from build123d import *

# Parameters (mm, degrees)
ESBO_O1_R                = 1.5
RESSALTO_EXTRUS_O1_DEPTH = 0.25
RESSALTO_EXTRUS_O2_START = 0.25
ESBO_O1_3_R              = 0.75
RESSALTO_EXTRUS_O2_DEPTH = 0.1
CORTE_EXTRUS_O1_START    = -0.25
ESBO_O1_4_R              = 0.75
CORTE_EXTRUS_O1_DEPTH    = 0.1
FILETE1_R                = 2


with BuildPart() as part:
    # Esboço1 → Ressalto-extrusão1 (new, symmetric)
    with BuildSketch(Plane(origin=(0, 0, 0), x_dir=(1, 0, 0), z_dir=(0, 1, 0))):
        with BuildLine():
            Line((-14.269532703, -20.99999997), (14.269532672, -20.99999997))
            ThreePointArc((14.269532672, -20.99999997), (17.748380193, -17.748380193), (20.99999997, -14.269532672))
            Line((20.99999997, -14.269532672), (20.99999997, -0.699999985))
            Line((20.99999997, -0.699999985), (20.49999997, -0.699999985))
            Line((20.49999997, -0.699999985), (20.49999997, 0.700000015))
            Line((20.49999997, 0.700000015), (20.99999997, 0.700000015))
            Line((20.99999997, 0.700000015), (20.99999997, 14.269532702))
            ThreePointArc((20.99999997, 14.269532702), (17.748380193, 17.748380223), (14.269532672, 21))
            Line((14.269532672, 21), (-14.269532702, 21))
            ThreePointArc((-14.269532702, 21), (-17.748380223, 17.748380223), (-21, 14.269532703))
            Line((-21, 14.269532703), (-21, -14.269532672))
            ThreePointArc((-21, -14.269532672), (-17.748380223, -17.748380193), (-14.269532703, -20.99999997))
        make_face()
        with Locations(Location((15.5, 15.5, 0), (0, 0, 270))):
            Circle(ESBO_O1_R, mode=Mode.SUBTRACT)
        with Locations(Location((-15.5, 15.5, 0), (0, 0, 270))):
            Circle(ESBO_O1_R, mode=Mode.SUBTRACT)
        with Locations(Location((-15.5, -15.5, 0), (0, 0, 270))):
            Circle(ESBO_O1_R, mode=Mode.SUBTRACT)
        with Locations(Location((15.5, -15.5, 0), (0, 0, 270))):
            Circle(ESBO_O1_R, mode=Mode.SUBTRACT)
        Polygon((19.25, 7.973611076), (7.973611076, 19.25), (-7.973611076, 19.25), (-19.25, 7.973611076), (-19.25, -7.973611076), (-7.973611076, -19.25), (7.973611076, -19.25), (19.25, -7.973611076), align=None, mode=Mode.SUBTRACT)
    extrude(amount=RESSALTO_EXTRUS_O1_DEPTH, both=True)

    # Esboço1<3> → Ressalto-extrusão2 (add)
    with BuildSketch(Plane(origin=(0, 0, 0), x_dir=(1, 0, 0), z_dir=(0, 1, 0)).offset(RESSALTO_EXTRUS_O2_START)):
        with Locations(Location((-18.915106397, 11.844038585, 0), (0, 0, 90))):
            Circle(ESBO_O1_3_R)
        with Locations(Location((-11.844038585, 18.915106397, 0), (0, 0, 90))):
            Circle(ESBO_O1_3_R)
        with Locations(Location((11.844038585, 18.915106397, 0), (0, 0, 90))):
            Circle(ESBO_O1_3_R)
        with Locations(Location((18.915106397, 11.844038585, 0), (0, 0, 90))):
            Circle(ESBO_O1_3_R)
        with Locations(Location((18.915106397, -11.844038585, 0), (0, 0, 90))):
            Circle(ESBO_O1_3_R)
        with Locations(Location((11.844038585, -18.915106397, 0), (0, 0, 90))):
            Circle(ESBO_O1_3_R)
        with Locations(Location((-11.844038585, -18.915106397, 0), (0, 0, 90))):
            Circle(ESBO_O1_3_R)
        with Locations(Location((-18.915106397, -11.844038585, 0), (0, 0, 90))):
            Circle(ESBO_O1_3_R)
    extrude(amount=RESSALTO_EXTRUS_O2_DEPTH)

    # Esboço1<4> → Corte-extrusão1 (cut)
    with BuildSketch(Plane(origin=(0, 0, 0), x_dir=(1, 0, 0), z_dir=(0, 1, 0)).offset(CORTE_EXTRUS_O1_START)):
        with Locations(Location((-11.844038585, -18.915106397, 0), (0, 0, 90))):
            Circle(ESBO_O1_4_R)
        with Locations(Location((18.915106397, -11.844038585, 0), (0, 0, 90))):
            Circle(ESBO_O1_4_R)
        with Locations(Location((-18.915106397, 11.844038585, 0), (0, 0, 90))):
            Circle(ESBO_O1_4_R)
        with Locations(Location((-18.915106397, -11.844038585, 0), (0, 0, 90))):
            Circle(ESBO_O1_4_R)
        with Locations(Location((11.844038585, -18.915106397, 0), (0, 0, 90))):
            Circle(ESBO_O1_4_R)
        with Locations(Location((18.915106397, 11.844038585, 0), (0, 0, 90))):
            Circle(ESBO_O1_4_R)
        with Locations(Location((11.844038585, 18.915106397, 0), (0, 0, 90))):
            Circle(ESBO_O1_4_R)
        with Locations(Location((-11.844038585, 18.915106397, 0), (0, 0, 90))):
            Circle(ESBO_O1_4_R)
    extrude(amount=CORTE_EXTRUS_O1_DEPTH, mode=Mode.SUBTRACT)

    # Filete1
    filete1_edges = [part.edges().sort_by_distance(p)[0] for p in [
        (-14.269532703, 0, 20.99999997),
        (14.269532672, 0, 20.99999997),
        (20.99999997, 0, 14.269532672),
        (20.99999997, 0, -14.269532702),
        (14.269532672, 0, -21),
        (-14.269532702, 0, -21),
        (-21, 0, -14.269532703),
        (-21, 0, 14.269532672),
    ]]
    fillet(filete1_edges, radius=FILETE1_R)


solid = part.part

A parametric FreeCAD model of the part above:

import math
import FreeCAD as App
import Part
import Sketcher

V = App.Vector


def edges_at(feature, points):
    """Names of the edges that pass closest to the given points."""
    edges = feature.Shape.Edges
    near = lambda p: min(range(len(edges)), key=lambda i: edges[i].distToShape(Part.Vertex(*p))[0])
    return sorted({f"Edge{near(p) + 1}" for p in points})

doc = App.newDocument("Part")
body = doc.addObject("PartDesign::Body", "Body")

sketch1 = doc.addObject("Sketcher::SketchObject", "Sketch")
body.addObject(sketch1)
sketch1.AttachmentSupport = (doc.XZ_Plane, [""])
sketch1.MapMode = "FlatFace"
sketch1.addGeometry(Part.LineSegment(V(-14.269533, 21, 0), V(14.269533, 21, 0)), False)
sketch1.addGeometry(Part.ArcOfCircle(Part.Circle(V(-32.1474, -32.1474, 0), V(0, 0, 1), 70.563289), math.radians(41.132736), math.radians(48.867264)), False)
sketch1.addGeometry(Part.LineSegment(V(21, 14.269533, 0), V(21, 0.7, 0)), False)
sketch1.addGeometry(Part.LineSegment(V(21, 0.7, 0), V(20.5, 0.7, 0)), False)
sketch1.addGeometry(Part.LineSegment(V(20.5, 0.7, 0), V(20.5, -0.7, 0)), False)
sketch1.addGeometry(Part.LineSegment(V(20.5, -0.7, 0), V(21, -0.7, 0)), False)
sketch1.addGeometry(Part.LineSegment(V(21, -0.7, 0), V(21, -14.269533, 0)), False)
sketch1.addGeometry(Part.ArcOfCircle(Part.Circle(V(-32.1474, 32.1474, 0), V(0, 0, 1), 70.563289), math.radians(-48.867264), math.radians(-41.132736)), False)
sketch1.addGeometry(Part.LineSegment(V(14.269533, -21, 0), V(-14.269533, -21, 0)), False)
sketch1.addGeometry(Part.ArcOfCircle(Part.Circle(V(32.1474, 32.1474, 0), V(0, 0, 1), 70.56329), math.radians(-138.867264), math.radians(-131.132736)), False)
sketch1.addGeometry(Part.LineSegment(V(-21, -14.269533, 0), V(-21, 14.269533, 0)), False)
sketch1.addGeometry(Part.ArcOfCircle(Part.Circle(V(32.1474, -32.1474, 0), V(0, 0, 1), 70.56329), math.radians(131.132736), math.radians(138.867264)), False)
sketch1.addGeometry(Part.Circle(V(-15.5, 15.5, 0), V(0, 0, 1), 1.5), False)
sketch1.addGeometry(Part.Circle(V(15.5, 15.5, 0), V(0, 0, 1), 1.5), False)
sketch1.addGeometry(Part.Circle(V(-15.5, -15.5, 0), V(0, 0, 1), 1.5), False)
sketch1.addGeometry(Part.LineSegment(V(7.973611, -19.25, 0), V(19.25, -7.973611, 0)), False)
sketch1.addGeometry(Part.LineSegment(V(19.25, -7.973611, 0), V(19.25, 7.973611, 0)), False)
sketch1.addGeometry(Part.LineSegment(V(19.25, 7.973611, 0), V(7.973611, 19.25, 0)), False)
sketch1.addGeometry(Part.LineSegment(V(7.973611, 19.25, 0), V(-7.973611, 19.25, 0)), False)
sketch1.addGeometry(Part.LineSegment(V(-7.973611, 19.25, 0), V(-19.25, 7.973611, 0)), False)
sketch1.addGeometry(Part.LineSegment(V(-19.25, 7.973611, 0), V(-19.25, -7.973611, 0)), False)
sketch1.addGeometry(Part.LineSegment(V(-19.25, -7.973611, 0), V(-7.973611, -19.25, 0)), False)
sketch1.addGeometry(Part.LineSegment(V(-7.973611, -19.25, 0), V(7.973611, -19.25, 0)), False)
sketch1.addGeometry(Part.Circle(V(15.5, -15.5, 0), V(0, 0, 1), 1.5), False)
sketch1.addConstraint(Sketcher.Constraint("Coincident", 0, 2, 1, 2))
sketch1.addConstraint(Sketcher.Constraint("Coincident", 1, 1, 2, 1))
sketch1.addConstraint(Sketcher.Constraint("Coincident", 2, 2, 3, 1))
sketch1.addConstraint(Sketcher.Constraint("Coincident", 3, 2, 4, 1))
sketch1.addConstraint(Sketcher.Constraint("Coincident", 4, 2, 5, 1))
sketch1.addConstraint(Sketcher.Constraint("Coincident", 5, 2, 6, 1))
sketch1.addConstraint(Sketcher.Constraint("Coincident", 6, 2, 7, 2))
sketch1.addConstraint(Sketcher.Constraint("Coincident", 7, 1, 8, 1))
sketch1.addConstraint(Sketcher.Constraint("Coincident", 8, 2, 9, 2))
sketch1.addConstraint(Sketcher.Constraint("Coincident", 9, 1, 10, 1))
sketch1.addConstraint(Sketcher.Constraint("Coincident", 10, 2, 11, 2))
sketch1.addConstraint(Sketcher.Constraint("Coincident", 11, 1, 0, 1))
sketch1.addConstraint(Sketcher.Constraint("Coincident", 15, 2, 16, 1))
sketch1.addConstraint(Sketcher.Constraint("Coincident", 16, 2, 17, 1))
sketch1.addConstraint(Sketcher.Constraint("Coincident", 17, 2, 18, 1))
sketch1.addConstraint(Sketcher.Constraint("Coincident", 18, 2, 19, 1))
sketch1.addConstraint(Sketcher.Constraint("Coincident", 19, 2, 20, 1))
sketch1.addConstraint(Sketcher.Constraint("Coincident", 20, 2, 21, 1))
sketch1.addConstraint(Sketcher.Constraint("Coincident", 21, 2, 22, 1))
sketch1.addConstraint(Sketcher.Constraint("Coincident", 22, 2, 15, 1))
sketch1.addConstraint(Sketcher.Constraint("Horizontal", 0))
sketch1.addConstraint(Sketcher.Constraint("Vertical", 2))
sketch1.addConstraint(Sketcher.Constraint("Horizontal", 3))
sketch1.addConstraint(Sketcher.Constraint("Vertical", 4))
sketch1.addConstraint(Sketcher.Constraint("Horizontal", 5))
sketch1.addConstraint(Sketcher.Constraint("Vertical", 6))
sketch1.addConstraint(Sketcher.Constraint("Horizontal", 8))
sketch1.addConstraint(Sketcher.Constraint("Vertical", 10))
sketch1.addConstraint(Sketcher.Constraint("Vertical", 16))
sketch1.addConstraint(Sketcher.Constraint("Horizontal", 18))
sketch1.addConstraint(Sketcher.Constraint("Vertical", 20))
sketch1.addConstraint(Sketcher.Constraint("Horizontal", 22))
sketch1.addConstraint(Sketcher.Constraint("Equal", 1, 7))
sketch1.addConstraint(Sketcher.Constraint("Equal", 7, 9))
sketch1.addConstraint(Sketcher.Constraint("Equal", 9, 11))
sketch1.addConstraint(Sketcher.Constraint("Equal", 12, 13))
sketch1.addConstraint(Sketcher.Constraint("Equal", 13, 14))
sketch1.addConstraint(Sketcher.Constraint("Equal", 14, 23))
sketch1.addConstraint(Sketcher.Constraint("Symmetric", 1, 3, 9, 3, -1, 1))
sketch1.addConstraint(Sketcher.Constraint("Symmetric", 7, 3, 11, 3, -1, 1))
sketch1.addConstraint(Sketcher.Constraint("Symmetric", 13, 3, 14, 3, -1, 1))
sketch1.addConstraint(Sketcher.Constraint("Symmetric", 12, 3, 23, 3, -1, 1))
sketch1.addConstraint(Sketcher.Constraint("Symmetric", 15, 2, 19, 2, -1, 1))
sketch1.addConstraint(Sketcher.Constraint("Symmetric", 17, 2, 21, 2, -1, 1))
sketch1.addConstraint(Sketcher.Constraint("Symmetric", 7, 3, 9, 3, -2))
sketch1.addConstraint(Sketcher.Constraint("Symmetric", 12, 3, 13, 3, -2))
sketch1.addConstraint(Sketcher.Constraint("Symmetric", 2, 2, 5, 2, -1))
sketch1.addConstraint(Sketcher.Constraint("Perpendicular", 15, 17))
sketch1.addConstraint(Sketcher.Constraint("Perpendicular", 17, 19))
sketch1.addConstraint(Sketcher.Constraint("Perpendicular", 19, 21))
sketch1.addConstraint(Sketcher.Constraint("Horizontal", 6, 2, 9, 1))
sketch1.addConstraint(Sketcher.Constraint("Horizontal", 16, 2, 19, 2))
sketch1.addConstraint(Sketcher.Constraint("Vertical", 0, 2, 7, 1))
sketch1.addConstraint(Sketcher.Constraint("Vertical", 18, 2, 21, 2))
sketch1.addConstraint(Sketcher.Constraint("Equal", 8, 10))
sketch1.addConstraint(Sketcher.Constraint("Equal", 22, 16))
sketch1.addConstraint(Sketcher.Constraint("Diameter", 12, 3.0))
sketch1.addConstraint(Sketcher.Constraint("DistanceX", 3, 2, 3, 1, 0.5))
sketch1.addConstraint(Sketcher.Constraint("DistanceY", 4, 2, 4, 1, 1.4))
sketch1.addConstraint(Sketcher.Constraint("DistanceY", -1, 1, 0, 2, 21.0))
sketch1.addConstraint(Sketcher.Constraint("DistanceX", -1, 1, 2, 2, 21.0))
sketch1.addConstraint(Sketcher.Constraint("DistanceX", 12, 3, 13, 3, 31.0))
sketch1.addConstraint(Sketcher.Constraint("DistanceY", 14, 3, 12, 3, 31.0))
sketch1.addConstraint(Sketcher.Constraint("DistanceX", -1, 1, 15, 2, 19.25))
sketch1.addConstraint(Sketcher.Constraint("Radius", 1, 70.563289))
sketch1.addConstraint(Sketcher.Constraint("DistanceX", 1, 3, -1, 1, 32.1474))
sketch1.addConstraint(Sketcher.Constraint("DistanceX", 18, 2, 18, 1, 15.947222))
pad1 = doc.addObject("PartDesign::Pad", "Pad")
body.addObject(pad1)
pad1.Profile = sketch1
pad1.Length = 0.5
pad1.Midplane = True

sketch2 = doc.addObject("Sketcher::SketchObject", "Sketch001")
body.addObject(sketch2)
sketch2.AttachmentSupport = (doc.XZ_Plane, [""])
sketch2.MapMode = "FlatFace"
sketch2.AttachmentOffset = App.Placement(V(0, 0, -0.25), App.Rotation())
sketch2.addGeometry(Part.Circle(V(-18.915106, -11.844039, 0), V(0, 0, 1), 0.75), False)
sketch2.addGeometry(Part.Circle(V(-11.844039, -18.915106, 0), V(0, 0, 1), 0.75), False)
sketch2.addGeometry(Part.Circle(V(11.844039, -18.915106, 0), V(0, 0, 1), 0.75), False)
sketch2.addGeometry(Part.Circle(V(18.915106, -11.844039, 0), V(0, 0, 1), 0.75), False)
sketch2.addGeometry(Part.Circle(V(18.915106, 11.844039, 0), V(0, 0, 1), 0.75), False)
sketch2.addGeometry(Part.Circle(V(11.844039, 18.915106, 0), V(0, 0, 1), 0.75), False)
sketch2.addGeometry(Part.Circle(V(-11.844039, 18.915106, 0), V(0, 0, 1), 0.75), False)
sketch2.addGeometry(Part.Circle(V(-18.915106, 11.844039, 0), V(0, 0, 1), 0.75), False)
sketch2.addConstraint(Sketcher.Constraint("Equal", 0, 1))
sketch2.addConstraint(Sketcher.Constraint("Equal", 1, 2))
sketch2.addConstraint(Sketcher.Constraint("Equal", 2, 3))
sketch2.addConstraint(Sketcher.Constraint("Equal", 3, 4))
sketch2.addConstraint(Sketcher.Constraint("Equal", 4, 5))
sketch2.addConstraint(Sketcher.Constraint("Equal", 5, 6))
sketch2.addConstraint(Sketcher.Constraint("Equal", 6, 7))
sketch2.addConstraint(Sketcher.Constraint("Symmetric", 0, 3, 4, 3, -1, 1))
sketch2.addConstraint(Sketcher.Constraint("Symmetric", 1, 3, 5, 3, -1, 1))
sketch2.addConstraint(Sketcher.Constraint("Symmetric", 2, 3, 6, 3, -1, 1))
sketch2.addConstraint(Sketcher.Constraint("Symmetric", 3, 3, 7, 3, -1, 1))
sketch2.addConstraint(Sketcher.Constraint("Symmetric", 1, 3, 2, 3, -2))
sketch2.addConstraint(Sketcher.Constraint("Symmetric", 0, 3, 3, 3, -2))
sketch2.addConstraint(Sketcher.Constraint("Diameter", 0, 1.5))
sketch2.addConstraint(Sketcher.Constraint("DistanceY", 0, 3, -1, 1, 11.844039))
sketch2.addConstraint(Sketcher.Constraint("DistanceX", 1, 3, -1, 1, 11.844039))
sketch2.addConstraint(Sketcher.Constraint("DistanceX", 0, 3, -1, 1, 18.915106))
sketch2.addConstraint(Sketcher.Constraint("DistanceY", 1, 3, -1, 1, 18.915106))
pad2 = doc.addObject("PartDesign::Pad", "Pad001")
body.addObject(pad2)
pad2.Profile = sketch2
pad2.Length = 0.1
pad2.Reversed = True

sketch3 = doc.addObject("Sketcher::SketchObject", "Sketch002")
body.addObject(sketch3)
sketch3.AttachmentSupport = (doc.XZ_Plane, [""])
sketch3.MapMode = "FlatFace"
sketch3.AttachmentOffset = App.Placement(V(0, 0, 0.25), App.Rotation())
sketch3.addGeometry(Part.Circle(V(-11.844039, 18.915106, 0), V(0, 0, 1), 0.75), False)
sketch3.addGeometry(Part.Circle(V(18.915106, 11.844039, 0), V(0, 0, 1), 0.75), False)
sketch3.addGeometry(Part.Circle(V(-18.915106, -11.844039, 0), V(0, 0, 1), 0.75), False)
sketch3.addGeometry(Part.Circle(V(-18.915106, 11.844039, 0), V(0, 0, 1), 0.75), False)
sketch3.addGeometry(Part.Circle(V(11.844039, 18.915106, 0), V(0, 0, 1), 0.75), False)
sketch3.addGeometry(Part.Circle(V(18.915106, -11.844039, 0), V(0, 0, 1), 0.75), False)
sketch3.addGeometry(Part.Circle(V(11.844039, -18.915106, 0), V(0, 0, 1), 0.75), False)
sketch3.addGeometry(Part.Circle(V(-11.844039, -18.915106, 0), V(0, 0, 1), 0.75), False)
sketch3.addConstraint(Sketcher.Constraint("Equal", 0, 1))
sketch3.addConstraint(Sketcher.Constraint("Equal", 1, 2))
sketch3.addConstraint(Sketcher.Constraint("Equal", 2, 3))
sketch3.addConstraint(Sketcher.Constraint("Equal", 3, 4))
sketch3.addConstraint(Sketcher.Constraint("Equal", 4, 5))
sketch3.addConstraint(Sketcher.Constraint("Equal", 5, 6))
sketch3.addConstraint(Sketcher.Constraint("Equal", 6, 7))
sketch3.addConstraint(Sketcher.Constraint("Symmetric", 1, 3, 2, 3, -1, 1))
sketch3.addConstraint(Sketcher.Constraint("Symmetric", 3, 3, 5, 3, -1, 1))
sketch3.addConstraint(Sketcher.Constraint("Symmetric", 0, 3, 6, 3, -1, 1))
sketch3.addConstraint(Sketcher.Constraint("Symmetric", 4, 3, 7, 3, -1, 1))
sketch3.addConstraint(Sketcher.Constraint("Symmetric", 1, 3, 3, 3, -2))
sketch3.addConstraint(Sketcher.Constraint("Symmetric", 0, 3, 4, 3, -2))
sketch3.addConstraint(Sketcher.Constraint("Diameter", 0, 1.5))
sketch3.addConstraint(Sketcher.Constraint("DistanceX", 0, 3, -1, 1, 11.844039))
sketch3.addConstraint(Sketcher.Constraint("DistanceY", -1, 1, 1, 3, 11.844039))
sketch3.addConstraint(Sketcher.Constraint("DistanceY", -1, 1, 0, 3, 18.915106))
sketch3.addConstraint(Sketcher.Constraint("DistanceX", -1, 1, 1, 3, 18.915106))
pocket1 = doc.addObject("PartDesign::Pocket", "Pocket")
body.addObject(pocket1)
pocket1.Profile = sketch3
pocket1.Length = 0.1
doc.recompute()

fillet = doc.addObject("PartDesign::Fillet", "Fillet")
body.addObject(fillet)
fillet.Base = (pocket1, edges_at(pocket1, [
    (-14.27, 0, 21),
    (14.27, 0, 21),
    (21, 0, 14.27),
    (21, 0, -14.27),
    (14.27, 0, -21),
    (-14.27, 0, -21),
    (-21, 0, -14.27),
    (-21, 0, 14.27),
]))
fillet.Radius = 2

doc.recompute()
